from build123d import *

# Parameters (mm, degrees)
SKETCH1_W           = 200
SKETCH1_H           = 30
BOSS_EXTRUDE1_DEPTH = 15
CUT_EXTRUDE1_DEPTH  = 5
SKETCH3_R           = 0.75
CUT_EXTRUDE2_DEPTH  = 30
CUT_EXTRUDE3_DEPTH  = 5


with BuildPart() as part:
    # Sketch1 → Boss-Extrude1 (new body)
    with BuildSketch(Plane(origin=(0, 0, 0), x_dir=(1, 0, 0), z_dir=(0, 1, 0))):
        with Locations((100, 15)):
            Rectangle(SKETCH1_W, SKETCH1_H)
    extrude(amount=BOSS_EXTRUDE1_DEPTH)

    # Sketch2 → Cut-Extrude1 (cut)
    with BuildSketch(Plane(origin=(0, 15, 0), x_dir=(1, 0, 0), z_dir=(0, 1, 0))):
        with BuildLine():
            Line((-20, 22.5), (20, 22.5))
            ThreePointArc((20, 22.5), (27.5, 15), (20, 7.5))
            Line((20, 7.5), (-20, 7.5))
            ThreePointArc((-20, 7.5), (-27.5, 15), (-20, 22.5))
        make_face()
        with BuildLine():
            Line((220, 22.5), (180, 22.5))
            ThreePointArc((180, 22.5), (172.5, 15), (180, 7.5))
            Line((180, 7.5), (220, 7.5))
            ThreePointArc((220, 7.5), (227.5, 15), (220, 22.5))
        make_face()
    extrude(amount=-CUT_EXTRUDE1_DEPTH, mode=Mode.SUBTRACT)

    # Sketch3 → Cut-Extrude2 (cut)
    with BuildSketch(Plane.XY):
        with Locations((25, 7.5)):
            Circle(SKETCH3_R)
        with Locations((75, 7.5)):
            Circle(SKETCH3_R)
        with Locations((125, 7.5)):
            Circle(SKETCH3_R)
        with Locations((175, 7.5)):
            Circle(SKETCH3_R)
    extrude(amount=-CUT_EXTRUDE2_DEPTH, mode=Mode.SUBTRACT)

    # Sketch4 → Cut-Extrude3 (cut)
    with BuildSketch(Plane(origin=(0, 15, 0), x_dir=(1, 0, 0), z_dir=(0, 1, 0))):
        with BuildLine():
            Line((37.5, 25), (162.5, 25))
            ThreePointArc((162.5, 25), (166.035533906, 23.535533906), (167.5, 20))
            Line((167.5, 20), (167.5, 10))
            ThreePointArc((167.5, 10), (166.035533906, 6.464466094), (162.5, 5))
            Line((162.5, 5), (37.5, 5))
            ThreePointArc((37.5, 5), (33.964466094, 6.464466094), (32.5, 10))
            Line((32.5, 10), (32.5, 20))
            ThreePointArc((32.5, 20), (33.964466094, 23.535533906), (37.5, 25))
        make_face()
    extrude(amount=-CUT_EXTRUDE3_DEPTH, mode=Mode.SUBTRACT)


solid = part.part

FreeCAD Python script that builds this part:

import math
import FreeCAD as App
import Part
import Sketcher

doc = App.newDocument("Part")
params = doc.addObject("Spreadsheet::Sheet", "Params")
for row, (alias, value) in enumerate([
    ("sketch1_width", "200 mm"),
    ("sketch1_height", "30 mm"),
    ("pad1_length", "15 mm"),
    ("sketch2_radius", "7.5 mm"),
    ("sketch2_width", "40 mm"),
    ("pocket1_length", "5 mm"),
    ("sketch3_diameter", "1.5 mm"),
    ("pocket2_length", "30 mm"),
    ("sketch4_radius", "5 mm"),
    ("sketch4_width", "125 mm"),
    ("sketch4_height", "10 mm"),
    ("pocket3_length", "5 mm"),
], start=1):
    params.set(f"A{row}", alias)
    params.set(f"B{row}", "=" + value)
    params.setAlias(f"B{row}", alias)

body = doc.addObject("PartDesign::Body", "Body")

sketch1 = body.newObject("Sketcher::SketchObject", "Sketch")
sketch1.AttachmentSupport = (doc.getObject("XZ_Plane"), [""])
sketch1.MapMode = "FlatFace"
sketch1.addGeometry(Part.LineSegment(App.Vector(0, -30, 0), App.Vector(0, 0, 0)), False)
sketch1.addGeometry(Part.LineSegment(App.Vector(0, 0, 0), App.Vector(200, 0, 0)), False)
sketch1.addGeometry(Part.LineSegment(App.Vector(200, 0, 0), App.Vector(200, -30, 0)), False)
sketch1.addGeometry(Part.LineSegment(App.Vector(200, -30, 0), App.Vector(0, -30, 0)), False)
sketch1.addConstraint(Sketcher.Constraint("Coincident", 0, 2, 1, 1))
sketch1.addConstraint(Sketcher.Constraint("Coincident", 1, 2, 2, 1))
sketch1.addConstraint(Sketcher.Constraint("Coincident", 2, 2, 3, 1))
sketch1.addConstraint(Sketcher.Constraint("Coincident", 3, 2, 0, 1))
sketch1.addConstraint(Sketcher.Constraint("Vertical", 0))
sketch1.addConstraint(Sketcher.Constraint("Horizontal", 1))
sketch1.addConstraint(Sketcher.Constraint("Vertical", 2))
sketch1.addConstraint(Sketcher.Constraint("Horizontal", 3))
sketch1.addConstraint(Sketcher.Constraint("Coincident", 0, 2, -1, 1))
sketch1.addConstraint(Sketcher.Constraint("DistanceX", 1, 1, 1, 2, 200.0))
sketch1.addConstraint(Sketcher.Constraint("DistanceY", 0, 1, 0, 2, 30.0))
sketch1.setExpression("Constraints[9]", "Params.sketch1_width")
sketch1.setExpression("Constraints[10]", "Params.sketch1_height")
pad1 = body.newObject("PartDesign::Pad", "Pad")
pad1.Profile = sketch1
pad1.setExpression("Length", "Params.pad1_length")
pad1.Reversed = True

sketch2 = body.newObject("Sketcher::SketchObject", "Sketch001")
sketch2.AttachmentSupport = (doc.getObject("XZ_Plane"), [""])
sketch2.MapMode = "FlatFace"
sketch2.AttachmentOffset = App.Placement(App.Vector(0, 0, -15), App.Rotation())
sketch2.addGeometry(Part.LineSegment(App.Vector(20, -22.5, 0), App.Vector(-20, -22.5, 0)), False)
sketch2.addGeometry(Part.ArcOfCircle(Part.Circle(App.Vector(-20, -15, 0), App.Vector(0, 0, 1), 7.5), math.radians(90), math.radians(270)), False)
sketch2.addGeometry(Part.LineSegment(App.Vector(-20, -7.5, 0), App.Vector(20, -7.5, 0)), False)
sketch2.addGeometry(Part.ArcOfCircle(Part.Circle(App.Vector(20, -15, 0), App.Vector(0, 0, 1), 7.5), math.radians(-90), math.radians(90)), False)
sketch2.addGeometry(Part.LineSegment(App.Vector(220, -22.5, 0), App.Vector(180, -22.5, 0)), False)
sketch2.addGeometry(Part.ArcOfCircle(Part.Circle(App.Vector(180, -15, 0), App.Vector(0, 0, 1), 7.5), math.radians(90), math.radians(270)), False)
sketch2.addGeometry(Part.LineSegment(App.Vector(180, -7.5, 0), App.Vector(220, -7.5, 0)), False)
sketch2.addGeometry(Part.ArcOfCircle(Part.Circle(App.Vector(220, -15, 0), App.Vector(0, 0, 1), 7.5), math.radians(-90), math.radians(90)), False)
sketch2.addConstraint(Sketcher.Constraint("Tangent", 0, 2, 1, 2))
sketch2.addConstraint(Sketcher.Constraint("Tangent", 1, 1, 2, 1))
sketch2.addConstraint(Sketcher.Constraint("Tangent", 2, 2, 3, 2))
sketch2.addConstraint(Sketcher.Constraint("Tangent", 3, 1, 0, 1))
sketch2.addConstraint(Sketcher.Constraint("Tangent", 4, 2, 5, 2))
sketch2.addConstraint(Sketcher.Constraint("Tangent", 5, 1, 6, 1))
sketch2.addConstraint(Sketcher.Constraint("Tangent", 6, 2, 7, 2))
sketch2.addConstraint(Sketcher.Constraint("Tangent", 7, 1, 4, 1))
sketch2.addConstraint(Sketcher.Constraint("Horizontal", 0))
sketch2.addConstraint(Sketcher.Constraint("Horizontal", 2))
sketch2.addConstraint(Sketcher.Constraint("Horizontal", 4))
sketch2.addConstraint(Sketcher.Constraint("Horizontal", 6))
sketch2.addConstraint(Sketcher.Constraint("Equal", 3, 5))
sketch2.addConstraint(Sketcher.Constraint("Horizontal", 3, 3, 5, 3))
sketch2.addConstraint(Sketcher.Constraint("Equal", 2, 4))
sketch2.addConstraint(Sketcher.Constraint("Radius", 1, 7.5))
sketch2.addConstraint(Sketcher.Constraint("DistanceX", 0, 2, 0, 1, 40.0))
sketch2.addConstraint(Sketcher.Constraint("DistanceX", 1, 3, -1, 1, 20.0))
sketch2.addConstraint(Sketcher.Constraint("DistanceY", 1, 3, -1, 1, 15.0))
sketch2.addConstraint(Sketcher.Constraint("DistanceX", -1, 1, 5, 3, 180.0))
sketch2.setExpression("Constraints[15]", "Params.sketch2_radius")
sketch2.setExpression("Constraints[16]", "Params.sketch2_width")
pocket1 = body.newObject("PartDesign::Pocket", "Pocket")
pocket1.Profile = sketch2
pocket1.setExpression("Length", "Params.pocket1_length")
pocket1.Reversed = True

sketch3 = body.newObject("Sketcher::SketchObject", "Sketch002")
sketch3.AttachmentSupport = (doc.getObject("XY_Plane"), [""])
sketch3.MapMode = "FlatFace"
sketch3.addGeometry(Part.Circle(App.Vector(25, 7.5, 0), App.Vector(0, 0, 1), 0.75), False)
sketch3.addGeometry(Part.Circle(App.Vector(75, 7.5, 0), App.Vector(0, 0, 1), 0.75), False)
sketch3.addGeometry(Part.Circle(App.Vector(125, 7.5, 0), App.Vector(0, 0, 1), 0.75), False)
sketch3.addGeometry(Part.Circle(App.Vector(175, 7.5, 0), App.Vector(0, 0, 1), 0.75), False)
sketch3.addConstraint(Sketcher.Constraint("Equal", 0, 1))
sketch3.addConstraint(Sketcher.Constraint("Equal", 1, 2))
sketch3.addConstraint(Sketcher.Constraint("Equal", 2, 3))
sketch3.addConstraint(Sketcher.Constraint("Horizontal", 0, 3, 1, 3))
sketch3.addConstraint(Sketcher.Constraint("Horizontal", 1, 3, 2, 3))
sketch3.addConstraint(Sketcher.Constraint("Horizontal", 2, 3, 3, 3))
sketch3.addConstraint(Sketcher.Constraint("Diameter", 0, 1.5))
sketch3.addConstraint(Sketcher.Constraint("DistanceX", -1, 1, 0, 3, 25.0))
sketch3.addConstraint(Sketcher.Constraint("DistanceX", -1, 1, 1, 3, 75.0))
sketch3.addConstraint(Sketcher.Constraint("DistanceX", -1, 1, 2, 3, 125.0))
sketch3.addConstraint(Sketcher.Constraint("DistanceX", -1, 1, 3, 3, 175.0))
sketch3.addConstraint(Sketcher.Constraint("DistanceY", -1, 1, 0, 3, 7.5))
sketch3.setExpression("Constraints[6]", "Params.sketch3_diameter")
pocket2 = body.newObject("PartDesign::Pocket", "Pocket001")
pocket2.Profile = sketch3
pocket2.setExpression("Length", "Params.pocket2_length")

sketch4 = body.newObject("Sketcher::SketchObject", "Sketch003")
sketch4.AttachmentSupport = (doc.getObject("XZ_Plane"), [""])
sketch4.MapMode = "FlatFace"
sketch4.AttachmentOffset = App.Placement(App.Vector(0, 0, -15), App.Rotation())
sketch4.addGeometry(Part.LineSegment(App.Vector(162.5, -25, 0), App.Vector(37.5, -25, 0)), False)
sketch4.addGeometry(Part.ArcOfCircle(Part.Circle(App.Vector(37.5, -20, 0), App.Vector(0, 0, 1), 5), math.radians(180), math.radians(270)), False)
sketch4.addGeometry(Part.LineSegment(App.Vector(32.5, -20, 0), App.Vector(32.5, -10, 0)), False)
sketch4.addGeometry(Part.ArcOfCircle(Part.Circle(App.Vector(37.5, -10, 0), App.Vector(0, 0, 1), 5), math.radians(90), math.radians(180)), False)
sketch4.addGeometry(Part.LineSegment(App.Vector(37.5, -5, 0), App.Vector(162.5, -5, 0)), False)
sketch4.addGeometry(Part.ArcOfCircle(Part.Circle(App.Vector(162.5, -10, 0), App.Vector(0, 0, 1), 5), math.radians(0), math.radians(90)), False)
sketch4.addGeometry(Part.LineSegment(App.Vector(167.5, -10, 0), App.Vector(167.5, -20, 0)), False)
sketch4.addGeometry(Part.ArcOfCircle(Part.Circle(App.Vector(162.5, -20, 0), App.Vector(0, 0, 1), 5), math.radians(-90), math.radians(0)), False)
sketch4.addConstraint(Sketcher.Constraint("Tangent", 0, 2, 1, 2))
sketch4.addConstraint(Sketcher.Constraint("Tangent", 1, 1, 2, 1))
sketch4.addConstraint(Sketcher.Constraint("Tangent", 2, 2, 3, 2))
sketch4.addConstraint(Sketcher.Constraint("Tangent", 3, 1, 4, 1))
sketch4.addConstraint(Sketcher.Constraint("Tangent", 4, 2, 5, 2))
sketch4.addConstraint(Sketcher.Constraint("Tangent", 5, 1, 6, 1))
sketch4.addConstraint(Sketcher.Constraint("Tangent", 6, 2, 7, 2))
sketch4.addConstraint(Sketcher.Constraint("Tangent", 7, 1, 0, 1))
sketch4.addConstraint(Sketcher.Constraint("Horizontal", 0))
sketch4.addConstraint(Sketcher.Constraint("Vertical", 2))
sketch4.addConstraint(Sketcher.Constraint("Horizontal", 4))
sketch4.addConstraint(Sketcher.Constraint("Vertical", 6))
sketch4.addConstraint(Sketcher.Constraint("Equal", 1, 3))
sketch4.addConstraint(Sketcher.Constraint("Equal", 3, 5))
sketch4.addConstraint(Sketcher.Constraint("Equal", 5, 7))
sketch4.addConstraint(Sketcher.Constraint("Radius", 1, 5.0))
sketch4.addConstraint(Sketcher.Constraint("DistanceX", 0, 2, 0, 1, 125.0))
sketch4.addConstraint(Sketcher.Constraint("DistanceY", 2, 1, 2, 2, 10.0))
sketch4.addConstraint(Sketcher.Constraint("DistanceY", 1, 3, -1, 1, 20.0))
sketch4.addConstraint(Sketcher.Constraint("DistanceX", -1, 1, 1, 3, 37.5))
sketch4.setExpression("Constraints[15]", "Params.sketch4_radius")
sketch4.setExpression("Constraints[16]", "Params.sketch4_width")
sketch4.setExpression("Constraints[17]", "Params.sketch4_height")
pocket3 = body.newObject("PartDesign::Pocket", "Pocket002")
pocket3.Profile = sketch4
pocket3.setExpression("Length", "Params.pocket3_length")
pocket3.Reversed = True

doc.recompute()
